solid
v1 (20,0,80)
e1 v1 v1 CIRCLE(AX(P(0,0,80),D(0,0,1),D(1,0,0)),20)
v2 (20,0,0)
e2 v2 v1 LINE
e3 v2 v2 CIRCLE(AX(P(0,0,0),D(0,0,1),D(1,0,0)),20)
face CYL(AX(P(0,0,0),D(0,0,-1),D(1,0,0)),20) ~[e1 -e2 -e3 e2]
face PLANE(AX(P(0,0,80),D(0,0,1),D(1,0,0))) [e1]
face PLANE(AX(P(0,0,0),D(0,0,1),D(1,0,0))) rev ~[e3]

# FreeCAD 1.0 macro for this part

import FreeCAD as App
import Part
import Sketcher

doc = App.newDocument("Part")
body = doc.addObject("PartDesign::Body", "Body")

# Sketch on XY plane
sketch1 = body.newObject("Sketcher::SketchObject", "Sketch")
sketch1.AttachmentSupport = (doc.getObject("XY_Plane"), [""])
sketch1.MapMode = "FlatFace"
sketch1.addGeometry(Part.Circle(App.Vector(0, 0, 0), App.Vector(0, 0, 1), 20), False)
sketch1.addConstraint([
    Sketcher.Constraint("Coincident", 0, 3, -1, 1),
    Sketcher.Constraint("Diameter", 0, 40.0),
])
pad1 = body.newObject("PartDesign::Pad", "Pad")
pad1.Profile = sketch1
pad1.Length = 80

doc.recompute()
